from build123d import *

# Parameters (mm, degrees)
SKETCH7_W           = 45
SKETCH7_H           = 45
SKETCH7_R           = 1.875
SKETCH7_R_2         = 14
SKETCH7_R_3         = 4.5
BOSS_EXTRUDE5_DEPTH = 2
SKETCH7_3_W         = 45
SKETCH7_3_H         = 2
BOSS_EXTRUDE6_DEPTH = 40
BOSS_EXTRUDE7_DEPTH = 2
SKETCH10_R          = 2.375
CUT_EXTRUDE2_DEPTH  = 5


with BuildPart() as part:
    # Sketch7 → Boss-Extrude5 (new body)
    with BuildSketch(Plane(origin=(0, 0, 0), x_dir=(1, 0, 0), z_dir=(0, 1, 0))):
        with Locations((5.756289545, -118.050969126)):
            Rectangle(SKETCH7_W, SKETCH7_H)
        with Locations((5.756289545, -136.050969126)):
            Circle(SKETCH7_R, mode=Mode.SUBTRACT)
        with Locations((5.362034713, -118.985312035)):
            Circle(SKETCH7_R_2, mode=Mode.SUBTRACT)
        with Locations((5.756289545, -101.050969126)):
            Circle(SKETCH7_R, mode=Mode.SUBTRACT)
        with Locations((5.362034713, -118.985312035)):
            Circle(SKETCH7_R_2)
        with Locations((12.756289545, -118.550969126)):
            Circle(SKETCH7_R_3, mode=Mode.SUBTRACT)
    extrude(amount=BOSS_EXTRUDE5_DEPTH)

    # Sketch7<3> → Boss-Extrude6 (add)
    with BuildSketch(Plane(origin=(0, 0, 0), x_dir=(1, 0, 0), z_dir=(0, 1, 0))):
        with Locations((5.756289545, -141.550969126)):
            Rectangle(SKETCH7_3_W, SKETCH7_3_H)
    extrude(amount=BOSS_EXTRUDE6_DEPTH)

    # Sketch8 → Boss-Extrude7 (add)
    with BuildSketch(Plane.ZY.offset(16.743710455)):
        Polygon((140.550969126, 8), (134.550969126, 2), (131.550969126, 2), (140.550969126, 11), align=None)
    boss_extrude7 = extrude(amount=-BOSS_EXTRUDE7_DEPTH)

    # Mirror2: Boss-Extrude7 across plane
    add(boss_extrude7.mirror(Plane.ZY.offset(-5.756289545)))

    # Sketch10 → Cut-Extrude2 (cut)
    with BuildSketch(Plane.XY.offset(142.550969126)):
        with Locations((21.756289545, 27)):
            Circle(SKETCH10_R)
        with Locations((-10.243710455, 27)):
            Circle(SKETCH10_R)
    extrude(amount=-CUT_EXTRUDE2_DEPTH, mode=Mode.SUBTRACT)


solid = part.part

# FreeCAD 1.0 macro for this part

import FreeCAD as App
import Part
import Sketcher
Q = App.Units.Quantity

doc = App.newDocument("Part")
body = doc.addObject("PartDesign::Body", "Body")

sketch1 = body.newObject("Sketcher::SketchObject", "Sketch")
sketch1.AttachmentSupport = (doc.getObject("XZ_Plane"), [""])
sketch1.MapMode = "FlatFace"
sketch1.addGeometry(Part.LineSegment(App.Vector(-16.7, 95.6, 0), App.Vector(-16.7, 140.6, 0)), False)
sketch1.addGeometry(Part.LineSegment(App.Vector(-16.7, 140.6, 0), App.Vector(28.3, 140.6, 0)), False)
sketch1.addGeometry(Part.LineSegment(App.Vector(28.3, 140.6, 0), App.Vector(28.3, 95.6, 0)), False)
sketch1.addGeometry(Part.LineSegment(App.Vector(28.3, 95.6, 0), App.Vector(-16.7, 95.6, 0)), False)
sketch1.addGeometry(Part.Circle(App.Vector(5.8, 136.1, 0), App.Vector(0, 0, 1), 1.9), False)
sketch1.addGeometry(Part.Circle(App.Vector(5.8, 101.1, 0), App.Vector(0, 0, 1), 1.9), False)
sketch1.addGeometry(Part.Circle(App.Vector(12.8, 118.6, 0), App.Vector(0, 0, 1), 4.5), False)
sketch1.addConstraint(Sketcher.Constraint("Coincident", 0, 2, 1, 1))
sketch1.addConstraint(Sketcher.Constraint("Coincident", 1, 2, 2, 1))
sketch1.addConstraint(Sketcher.Constraint("Coincident", 2, 2, 3, 1))
sketch1.addConstraint(Sketcher.Constraint("Coincident", 3, 2, 0, 1))
sketch1.addConstraint(Sketcher.Constraint("Vertical", 0))
sketch1.addConstraint(Sketcher.Constraint("Horizontal", 1))
sketch1.addConstraint(Sketcher.Constraint("Vertical", 2))
sketch1.addConstraint(Sketcher.Constraint("Horizontal", 3))
sketch1.addConstraint(Sketcher.Constraint("Equal", 4, 5))
sketch1.addConstraint(Sketcher.Constraint("Vertical", 4, 3, 5, 3))
sketch1.addConstraint(Sketcher.Constraint("Equal", 3, 0))
sketch1.addConstraint(Sketcher.Constraint("Diameter", 6, Q("9 mm")))
sketch1.addConstraint(Sketcher.Constraint("Diameter", 4, Q("3.75 mm")))
sketch1.addConstraint(Sketcher.Constraint("DistanceX", 1, 1, 1, 2, Q("45 mm")))
sketch1.addConstraint(Sketcher.Constraint("DistanceY", 5, 3, 4, 3, Q("35 mm")))
sketch1.addConstraint(Sketcher.Constraint("DistanceX", 5, 3, 6, 3, Q("7 mm")))
sketch1.addConstraint(Sketcher.Constraint("DistanceY", 6, 3, 0, 2, Q("22 mm")))
sketch1.addConstraint(Sketcher.Constraint("DistanceY", 5, 3, 6, 3, Q("17.5 mm")))
sketch1.addConstraint(Sketcher.Constraint("DistanceX", 0, 2, 4, 3, Q("22.5 mm")))
sketch1.addConstraint(Sketcher.Constraint("DistanceX", -1, 1, 4, 3, Q("5.75629 mm")))
sketch1.addConstraint(Sketcher.Constraint("DistanceY", -1, 1, 4, 3, Q("136.050969 mm")))
pad1 = body.newObject("PartDesign::Pad", "Pad")
pad1.Profile = sketch1
pad1.Length = 2
pad1.Reversed = True

sketch2 = body.newObject("Sketcher::SketchObject", "Sketch001")
sketch2.AttachmentSupport = (doc.getObject("XZ_Plane"), [""])
sketch2.MapMode = "FlatFace"
sketch2.addGeometry(Part.LineSegment(App.Vector(-16.7, 140.6, 0), App.Vector(-16.7, 142.6, 0)), False)
sketch2.addGeometry(Part.LineSegment(App.Vector(-16.7, 142.6, 0), App.Vector(28.3, 142.6, 0)), False)
sketch2.addGeometry(Part.LineSegment(App.Vector(28.3, 142.6, 0), App.Vector(28.3, 140.6, 0)), False)
sketch2.addGeometry(Part.LineSegment(App.Vector(28.3, 140.6, 0), App.Vector(-16.7, 140.6, 0)), False)
sketch2.addConstraint(Sketcher.Constraint("Coincident", 0, 2, 1, 1))
sketch2.addConstraint(Sketcher.Constraint("Coincident", 1, 2, 2, 1))
sketch2.addConstraint(Sketcher.Constraint("Coincident", 2, 2, 3, 1))
sketch2.addConstraint(Sketcher.Constraint("Coincident", 3, 2, 0, 1))
sketch2.addConstraint(Sketcher.Constraint("Vertical", 0))
sketch2.addConstraint(Sketcher.Constraint("Horizontal", 1))
sketch2.addConstraint(Sketcher.Constraint("Vertical", 2))
sketch2.addConstraint(Sketcher.Constraint("Horizontal", 3))
sketch2.addConstraint(Sketcher.Constraint("DistanceX", 1, 1, 1, 2, Q("45 mm")))
sketch2.addConstraint(Sketcher.Constraint("DistanceY", 0, 1, 0, 2, Q("2 mm")))
sketch2.addConstraint(Sketcher.Constraint("DistanceX", 0, 2, -1, 1, Q("16.74371 mm")))
sketch2.addConstraint(Sketcher.Constraint("DistanceY", -1, 1, 0, 2, Q("142.550969 mm")))
pad2 = body.newObject("PartDesign::Pad", "Pad001")
pad2.Profile = sketch2
pad2.Length = 40
pad2.Reversed = True

sketch3 = body.newObject("Sketcher::SketchObject", "Sketch002")
sketch3.AttachmentSupport = (doc.getObject("YZ_Plane"), [""])
sketch3.MapMode = "FlatFace"
sketch3.AttachmentOffset = App.Placement(App.Vector(0, 0, -16.74371), App.Rotation())
sketch3.addGeometry(Part.LineSegment(App.Vector(2, 134.6, 0), App.Vector(8, 140.6, 0)), False)
sketch3.addGeometry(Part.LineSegment(App.Vector(8, 140.6, 0), App.Vector(11, 140.6, 0)), False)
sketch3.addGeometry(Part.LineSegment(App.Vector(11, 140.6, 0), App.Vector(2, 131.6, 0)), False)
sketch3.addGeometry(Part.LineSegment(App.Vector(2, 131.6, 0), App.Vector(2, 134.6, 0)), False)
sketch3.addConstraint(Sketcher.Constraint("Coincident", 0, 2, 1, 1))
sketch3.addConstraint(Sketcher.Constraint("Coincident", 1, 2, 2, 1))
sketch3.addConstraint(Sketcher.Constraint("Coincident", 2, 2, 3, 1))
sketch3.addConstraint(Sketcher.Constraint("Coincident", 3, 2, 0, 1))
sketch3.addConstraint(Sketcher.Constraint("Horizontal", 1))
sketch3.addConstraint(Sketcher.Constraint("Vertical", 3))
sketch3.addConstraint(Sketcher.Constraint("Parallel", 0, 2))
sketch3.addConstraint(Sketcher.Constraint("Equal", 1, 3))
sketch3.addConstraint(Sketcher.Constraint("DistanceX", 1, 1, 1, 2, Q("3 mm")))
sketch3.addConstraint(Sketcher.Constraint("DistanceX", -1, 1, 0, 2, Q("8 mm")))
sketch3.addConstraint(Sketcher.Constraint("DistanceX", -1, 1, 2, 2, Q("2 mm")))
sketch3.addConstraint(Sketcher.Constraint("DistanceY", -1, 1, 0, 2, Q("140.550969 mm")))
pad3 = body.newObject("PartDesign::Pad", "Pad002")
pad3.Profile = sketch3
pad3.Length = 2
doc.recompute()

datumplane = body.newObject("PartDesign::Plane", "DatumPlane")
datumplane.AttachmentSupport = (doc.getObject("YZ_Plane"), [""])
datumplane.MapMode = "FlatFace"
datumplane.AttachmentOffset = App.Placement(App.Vector(0, 0, 5.75629), App.Rotation())
mirrored = body.newObject("PartDesign::Mirrored", "Mirrored")
mirrored.Originals = [pad3]
mirrored.MirrorPlane = (datumplane, [""])
body.Tip = mirrored

sketch4 = body.newObject("Sketcher::SketchObject", "Sketch003")
sketch4.AttachmentSupport = (doc.getObject("XY_Plane"), [""])
sketch4.MapMode = "FlatFace"
sketch4.AttachmentOffset = App.Placement(App.Vector(0, 0, 142.550969), App.Rotation())
sketch4.addGeometry(Part.Circle(App.Vector(21.8, 27, 0), App.Vector(0, 0, 1), 2.4), False)
sketch4.addGeometry(Part.Circle(App.Vector(-10.2, 27, 0), App.Vector(0, 0, 1), 2.4), False)
sketch4.addConstraint(Sketcher.Constraint("Equal", 0, 1))
sketch4.addConstraint(Sketcher.Constraint("Horizontal", 0, 3, 1, 3))
sketch4.addConstraint(Sketcher.Constraint("Diameter", 0, Q("4.75 mm")))
sketch4.addConstraint(Sketcher.Constraint("DistanceY", -1, 1, 0, 3, Q("27 mm")))
sketch4.addConstraint(Sketcher.Constraint("DistanceX", 1, 3, 0, 3, Q("32 mm")))
sketch4.addConstraint(Sketcher.Constraint("DistanceX", -1, 1, 0, 3, Q("21.75629 mm")))
pocket1 = body.newObject("PartDesign::Pocket", "Pocket")
pocket1.Profile = sketch4
pocket1.Length = 5

doc.recompute()
